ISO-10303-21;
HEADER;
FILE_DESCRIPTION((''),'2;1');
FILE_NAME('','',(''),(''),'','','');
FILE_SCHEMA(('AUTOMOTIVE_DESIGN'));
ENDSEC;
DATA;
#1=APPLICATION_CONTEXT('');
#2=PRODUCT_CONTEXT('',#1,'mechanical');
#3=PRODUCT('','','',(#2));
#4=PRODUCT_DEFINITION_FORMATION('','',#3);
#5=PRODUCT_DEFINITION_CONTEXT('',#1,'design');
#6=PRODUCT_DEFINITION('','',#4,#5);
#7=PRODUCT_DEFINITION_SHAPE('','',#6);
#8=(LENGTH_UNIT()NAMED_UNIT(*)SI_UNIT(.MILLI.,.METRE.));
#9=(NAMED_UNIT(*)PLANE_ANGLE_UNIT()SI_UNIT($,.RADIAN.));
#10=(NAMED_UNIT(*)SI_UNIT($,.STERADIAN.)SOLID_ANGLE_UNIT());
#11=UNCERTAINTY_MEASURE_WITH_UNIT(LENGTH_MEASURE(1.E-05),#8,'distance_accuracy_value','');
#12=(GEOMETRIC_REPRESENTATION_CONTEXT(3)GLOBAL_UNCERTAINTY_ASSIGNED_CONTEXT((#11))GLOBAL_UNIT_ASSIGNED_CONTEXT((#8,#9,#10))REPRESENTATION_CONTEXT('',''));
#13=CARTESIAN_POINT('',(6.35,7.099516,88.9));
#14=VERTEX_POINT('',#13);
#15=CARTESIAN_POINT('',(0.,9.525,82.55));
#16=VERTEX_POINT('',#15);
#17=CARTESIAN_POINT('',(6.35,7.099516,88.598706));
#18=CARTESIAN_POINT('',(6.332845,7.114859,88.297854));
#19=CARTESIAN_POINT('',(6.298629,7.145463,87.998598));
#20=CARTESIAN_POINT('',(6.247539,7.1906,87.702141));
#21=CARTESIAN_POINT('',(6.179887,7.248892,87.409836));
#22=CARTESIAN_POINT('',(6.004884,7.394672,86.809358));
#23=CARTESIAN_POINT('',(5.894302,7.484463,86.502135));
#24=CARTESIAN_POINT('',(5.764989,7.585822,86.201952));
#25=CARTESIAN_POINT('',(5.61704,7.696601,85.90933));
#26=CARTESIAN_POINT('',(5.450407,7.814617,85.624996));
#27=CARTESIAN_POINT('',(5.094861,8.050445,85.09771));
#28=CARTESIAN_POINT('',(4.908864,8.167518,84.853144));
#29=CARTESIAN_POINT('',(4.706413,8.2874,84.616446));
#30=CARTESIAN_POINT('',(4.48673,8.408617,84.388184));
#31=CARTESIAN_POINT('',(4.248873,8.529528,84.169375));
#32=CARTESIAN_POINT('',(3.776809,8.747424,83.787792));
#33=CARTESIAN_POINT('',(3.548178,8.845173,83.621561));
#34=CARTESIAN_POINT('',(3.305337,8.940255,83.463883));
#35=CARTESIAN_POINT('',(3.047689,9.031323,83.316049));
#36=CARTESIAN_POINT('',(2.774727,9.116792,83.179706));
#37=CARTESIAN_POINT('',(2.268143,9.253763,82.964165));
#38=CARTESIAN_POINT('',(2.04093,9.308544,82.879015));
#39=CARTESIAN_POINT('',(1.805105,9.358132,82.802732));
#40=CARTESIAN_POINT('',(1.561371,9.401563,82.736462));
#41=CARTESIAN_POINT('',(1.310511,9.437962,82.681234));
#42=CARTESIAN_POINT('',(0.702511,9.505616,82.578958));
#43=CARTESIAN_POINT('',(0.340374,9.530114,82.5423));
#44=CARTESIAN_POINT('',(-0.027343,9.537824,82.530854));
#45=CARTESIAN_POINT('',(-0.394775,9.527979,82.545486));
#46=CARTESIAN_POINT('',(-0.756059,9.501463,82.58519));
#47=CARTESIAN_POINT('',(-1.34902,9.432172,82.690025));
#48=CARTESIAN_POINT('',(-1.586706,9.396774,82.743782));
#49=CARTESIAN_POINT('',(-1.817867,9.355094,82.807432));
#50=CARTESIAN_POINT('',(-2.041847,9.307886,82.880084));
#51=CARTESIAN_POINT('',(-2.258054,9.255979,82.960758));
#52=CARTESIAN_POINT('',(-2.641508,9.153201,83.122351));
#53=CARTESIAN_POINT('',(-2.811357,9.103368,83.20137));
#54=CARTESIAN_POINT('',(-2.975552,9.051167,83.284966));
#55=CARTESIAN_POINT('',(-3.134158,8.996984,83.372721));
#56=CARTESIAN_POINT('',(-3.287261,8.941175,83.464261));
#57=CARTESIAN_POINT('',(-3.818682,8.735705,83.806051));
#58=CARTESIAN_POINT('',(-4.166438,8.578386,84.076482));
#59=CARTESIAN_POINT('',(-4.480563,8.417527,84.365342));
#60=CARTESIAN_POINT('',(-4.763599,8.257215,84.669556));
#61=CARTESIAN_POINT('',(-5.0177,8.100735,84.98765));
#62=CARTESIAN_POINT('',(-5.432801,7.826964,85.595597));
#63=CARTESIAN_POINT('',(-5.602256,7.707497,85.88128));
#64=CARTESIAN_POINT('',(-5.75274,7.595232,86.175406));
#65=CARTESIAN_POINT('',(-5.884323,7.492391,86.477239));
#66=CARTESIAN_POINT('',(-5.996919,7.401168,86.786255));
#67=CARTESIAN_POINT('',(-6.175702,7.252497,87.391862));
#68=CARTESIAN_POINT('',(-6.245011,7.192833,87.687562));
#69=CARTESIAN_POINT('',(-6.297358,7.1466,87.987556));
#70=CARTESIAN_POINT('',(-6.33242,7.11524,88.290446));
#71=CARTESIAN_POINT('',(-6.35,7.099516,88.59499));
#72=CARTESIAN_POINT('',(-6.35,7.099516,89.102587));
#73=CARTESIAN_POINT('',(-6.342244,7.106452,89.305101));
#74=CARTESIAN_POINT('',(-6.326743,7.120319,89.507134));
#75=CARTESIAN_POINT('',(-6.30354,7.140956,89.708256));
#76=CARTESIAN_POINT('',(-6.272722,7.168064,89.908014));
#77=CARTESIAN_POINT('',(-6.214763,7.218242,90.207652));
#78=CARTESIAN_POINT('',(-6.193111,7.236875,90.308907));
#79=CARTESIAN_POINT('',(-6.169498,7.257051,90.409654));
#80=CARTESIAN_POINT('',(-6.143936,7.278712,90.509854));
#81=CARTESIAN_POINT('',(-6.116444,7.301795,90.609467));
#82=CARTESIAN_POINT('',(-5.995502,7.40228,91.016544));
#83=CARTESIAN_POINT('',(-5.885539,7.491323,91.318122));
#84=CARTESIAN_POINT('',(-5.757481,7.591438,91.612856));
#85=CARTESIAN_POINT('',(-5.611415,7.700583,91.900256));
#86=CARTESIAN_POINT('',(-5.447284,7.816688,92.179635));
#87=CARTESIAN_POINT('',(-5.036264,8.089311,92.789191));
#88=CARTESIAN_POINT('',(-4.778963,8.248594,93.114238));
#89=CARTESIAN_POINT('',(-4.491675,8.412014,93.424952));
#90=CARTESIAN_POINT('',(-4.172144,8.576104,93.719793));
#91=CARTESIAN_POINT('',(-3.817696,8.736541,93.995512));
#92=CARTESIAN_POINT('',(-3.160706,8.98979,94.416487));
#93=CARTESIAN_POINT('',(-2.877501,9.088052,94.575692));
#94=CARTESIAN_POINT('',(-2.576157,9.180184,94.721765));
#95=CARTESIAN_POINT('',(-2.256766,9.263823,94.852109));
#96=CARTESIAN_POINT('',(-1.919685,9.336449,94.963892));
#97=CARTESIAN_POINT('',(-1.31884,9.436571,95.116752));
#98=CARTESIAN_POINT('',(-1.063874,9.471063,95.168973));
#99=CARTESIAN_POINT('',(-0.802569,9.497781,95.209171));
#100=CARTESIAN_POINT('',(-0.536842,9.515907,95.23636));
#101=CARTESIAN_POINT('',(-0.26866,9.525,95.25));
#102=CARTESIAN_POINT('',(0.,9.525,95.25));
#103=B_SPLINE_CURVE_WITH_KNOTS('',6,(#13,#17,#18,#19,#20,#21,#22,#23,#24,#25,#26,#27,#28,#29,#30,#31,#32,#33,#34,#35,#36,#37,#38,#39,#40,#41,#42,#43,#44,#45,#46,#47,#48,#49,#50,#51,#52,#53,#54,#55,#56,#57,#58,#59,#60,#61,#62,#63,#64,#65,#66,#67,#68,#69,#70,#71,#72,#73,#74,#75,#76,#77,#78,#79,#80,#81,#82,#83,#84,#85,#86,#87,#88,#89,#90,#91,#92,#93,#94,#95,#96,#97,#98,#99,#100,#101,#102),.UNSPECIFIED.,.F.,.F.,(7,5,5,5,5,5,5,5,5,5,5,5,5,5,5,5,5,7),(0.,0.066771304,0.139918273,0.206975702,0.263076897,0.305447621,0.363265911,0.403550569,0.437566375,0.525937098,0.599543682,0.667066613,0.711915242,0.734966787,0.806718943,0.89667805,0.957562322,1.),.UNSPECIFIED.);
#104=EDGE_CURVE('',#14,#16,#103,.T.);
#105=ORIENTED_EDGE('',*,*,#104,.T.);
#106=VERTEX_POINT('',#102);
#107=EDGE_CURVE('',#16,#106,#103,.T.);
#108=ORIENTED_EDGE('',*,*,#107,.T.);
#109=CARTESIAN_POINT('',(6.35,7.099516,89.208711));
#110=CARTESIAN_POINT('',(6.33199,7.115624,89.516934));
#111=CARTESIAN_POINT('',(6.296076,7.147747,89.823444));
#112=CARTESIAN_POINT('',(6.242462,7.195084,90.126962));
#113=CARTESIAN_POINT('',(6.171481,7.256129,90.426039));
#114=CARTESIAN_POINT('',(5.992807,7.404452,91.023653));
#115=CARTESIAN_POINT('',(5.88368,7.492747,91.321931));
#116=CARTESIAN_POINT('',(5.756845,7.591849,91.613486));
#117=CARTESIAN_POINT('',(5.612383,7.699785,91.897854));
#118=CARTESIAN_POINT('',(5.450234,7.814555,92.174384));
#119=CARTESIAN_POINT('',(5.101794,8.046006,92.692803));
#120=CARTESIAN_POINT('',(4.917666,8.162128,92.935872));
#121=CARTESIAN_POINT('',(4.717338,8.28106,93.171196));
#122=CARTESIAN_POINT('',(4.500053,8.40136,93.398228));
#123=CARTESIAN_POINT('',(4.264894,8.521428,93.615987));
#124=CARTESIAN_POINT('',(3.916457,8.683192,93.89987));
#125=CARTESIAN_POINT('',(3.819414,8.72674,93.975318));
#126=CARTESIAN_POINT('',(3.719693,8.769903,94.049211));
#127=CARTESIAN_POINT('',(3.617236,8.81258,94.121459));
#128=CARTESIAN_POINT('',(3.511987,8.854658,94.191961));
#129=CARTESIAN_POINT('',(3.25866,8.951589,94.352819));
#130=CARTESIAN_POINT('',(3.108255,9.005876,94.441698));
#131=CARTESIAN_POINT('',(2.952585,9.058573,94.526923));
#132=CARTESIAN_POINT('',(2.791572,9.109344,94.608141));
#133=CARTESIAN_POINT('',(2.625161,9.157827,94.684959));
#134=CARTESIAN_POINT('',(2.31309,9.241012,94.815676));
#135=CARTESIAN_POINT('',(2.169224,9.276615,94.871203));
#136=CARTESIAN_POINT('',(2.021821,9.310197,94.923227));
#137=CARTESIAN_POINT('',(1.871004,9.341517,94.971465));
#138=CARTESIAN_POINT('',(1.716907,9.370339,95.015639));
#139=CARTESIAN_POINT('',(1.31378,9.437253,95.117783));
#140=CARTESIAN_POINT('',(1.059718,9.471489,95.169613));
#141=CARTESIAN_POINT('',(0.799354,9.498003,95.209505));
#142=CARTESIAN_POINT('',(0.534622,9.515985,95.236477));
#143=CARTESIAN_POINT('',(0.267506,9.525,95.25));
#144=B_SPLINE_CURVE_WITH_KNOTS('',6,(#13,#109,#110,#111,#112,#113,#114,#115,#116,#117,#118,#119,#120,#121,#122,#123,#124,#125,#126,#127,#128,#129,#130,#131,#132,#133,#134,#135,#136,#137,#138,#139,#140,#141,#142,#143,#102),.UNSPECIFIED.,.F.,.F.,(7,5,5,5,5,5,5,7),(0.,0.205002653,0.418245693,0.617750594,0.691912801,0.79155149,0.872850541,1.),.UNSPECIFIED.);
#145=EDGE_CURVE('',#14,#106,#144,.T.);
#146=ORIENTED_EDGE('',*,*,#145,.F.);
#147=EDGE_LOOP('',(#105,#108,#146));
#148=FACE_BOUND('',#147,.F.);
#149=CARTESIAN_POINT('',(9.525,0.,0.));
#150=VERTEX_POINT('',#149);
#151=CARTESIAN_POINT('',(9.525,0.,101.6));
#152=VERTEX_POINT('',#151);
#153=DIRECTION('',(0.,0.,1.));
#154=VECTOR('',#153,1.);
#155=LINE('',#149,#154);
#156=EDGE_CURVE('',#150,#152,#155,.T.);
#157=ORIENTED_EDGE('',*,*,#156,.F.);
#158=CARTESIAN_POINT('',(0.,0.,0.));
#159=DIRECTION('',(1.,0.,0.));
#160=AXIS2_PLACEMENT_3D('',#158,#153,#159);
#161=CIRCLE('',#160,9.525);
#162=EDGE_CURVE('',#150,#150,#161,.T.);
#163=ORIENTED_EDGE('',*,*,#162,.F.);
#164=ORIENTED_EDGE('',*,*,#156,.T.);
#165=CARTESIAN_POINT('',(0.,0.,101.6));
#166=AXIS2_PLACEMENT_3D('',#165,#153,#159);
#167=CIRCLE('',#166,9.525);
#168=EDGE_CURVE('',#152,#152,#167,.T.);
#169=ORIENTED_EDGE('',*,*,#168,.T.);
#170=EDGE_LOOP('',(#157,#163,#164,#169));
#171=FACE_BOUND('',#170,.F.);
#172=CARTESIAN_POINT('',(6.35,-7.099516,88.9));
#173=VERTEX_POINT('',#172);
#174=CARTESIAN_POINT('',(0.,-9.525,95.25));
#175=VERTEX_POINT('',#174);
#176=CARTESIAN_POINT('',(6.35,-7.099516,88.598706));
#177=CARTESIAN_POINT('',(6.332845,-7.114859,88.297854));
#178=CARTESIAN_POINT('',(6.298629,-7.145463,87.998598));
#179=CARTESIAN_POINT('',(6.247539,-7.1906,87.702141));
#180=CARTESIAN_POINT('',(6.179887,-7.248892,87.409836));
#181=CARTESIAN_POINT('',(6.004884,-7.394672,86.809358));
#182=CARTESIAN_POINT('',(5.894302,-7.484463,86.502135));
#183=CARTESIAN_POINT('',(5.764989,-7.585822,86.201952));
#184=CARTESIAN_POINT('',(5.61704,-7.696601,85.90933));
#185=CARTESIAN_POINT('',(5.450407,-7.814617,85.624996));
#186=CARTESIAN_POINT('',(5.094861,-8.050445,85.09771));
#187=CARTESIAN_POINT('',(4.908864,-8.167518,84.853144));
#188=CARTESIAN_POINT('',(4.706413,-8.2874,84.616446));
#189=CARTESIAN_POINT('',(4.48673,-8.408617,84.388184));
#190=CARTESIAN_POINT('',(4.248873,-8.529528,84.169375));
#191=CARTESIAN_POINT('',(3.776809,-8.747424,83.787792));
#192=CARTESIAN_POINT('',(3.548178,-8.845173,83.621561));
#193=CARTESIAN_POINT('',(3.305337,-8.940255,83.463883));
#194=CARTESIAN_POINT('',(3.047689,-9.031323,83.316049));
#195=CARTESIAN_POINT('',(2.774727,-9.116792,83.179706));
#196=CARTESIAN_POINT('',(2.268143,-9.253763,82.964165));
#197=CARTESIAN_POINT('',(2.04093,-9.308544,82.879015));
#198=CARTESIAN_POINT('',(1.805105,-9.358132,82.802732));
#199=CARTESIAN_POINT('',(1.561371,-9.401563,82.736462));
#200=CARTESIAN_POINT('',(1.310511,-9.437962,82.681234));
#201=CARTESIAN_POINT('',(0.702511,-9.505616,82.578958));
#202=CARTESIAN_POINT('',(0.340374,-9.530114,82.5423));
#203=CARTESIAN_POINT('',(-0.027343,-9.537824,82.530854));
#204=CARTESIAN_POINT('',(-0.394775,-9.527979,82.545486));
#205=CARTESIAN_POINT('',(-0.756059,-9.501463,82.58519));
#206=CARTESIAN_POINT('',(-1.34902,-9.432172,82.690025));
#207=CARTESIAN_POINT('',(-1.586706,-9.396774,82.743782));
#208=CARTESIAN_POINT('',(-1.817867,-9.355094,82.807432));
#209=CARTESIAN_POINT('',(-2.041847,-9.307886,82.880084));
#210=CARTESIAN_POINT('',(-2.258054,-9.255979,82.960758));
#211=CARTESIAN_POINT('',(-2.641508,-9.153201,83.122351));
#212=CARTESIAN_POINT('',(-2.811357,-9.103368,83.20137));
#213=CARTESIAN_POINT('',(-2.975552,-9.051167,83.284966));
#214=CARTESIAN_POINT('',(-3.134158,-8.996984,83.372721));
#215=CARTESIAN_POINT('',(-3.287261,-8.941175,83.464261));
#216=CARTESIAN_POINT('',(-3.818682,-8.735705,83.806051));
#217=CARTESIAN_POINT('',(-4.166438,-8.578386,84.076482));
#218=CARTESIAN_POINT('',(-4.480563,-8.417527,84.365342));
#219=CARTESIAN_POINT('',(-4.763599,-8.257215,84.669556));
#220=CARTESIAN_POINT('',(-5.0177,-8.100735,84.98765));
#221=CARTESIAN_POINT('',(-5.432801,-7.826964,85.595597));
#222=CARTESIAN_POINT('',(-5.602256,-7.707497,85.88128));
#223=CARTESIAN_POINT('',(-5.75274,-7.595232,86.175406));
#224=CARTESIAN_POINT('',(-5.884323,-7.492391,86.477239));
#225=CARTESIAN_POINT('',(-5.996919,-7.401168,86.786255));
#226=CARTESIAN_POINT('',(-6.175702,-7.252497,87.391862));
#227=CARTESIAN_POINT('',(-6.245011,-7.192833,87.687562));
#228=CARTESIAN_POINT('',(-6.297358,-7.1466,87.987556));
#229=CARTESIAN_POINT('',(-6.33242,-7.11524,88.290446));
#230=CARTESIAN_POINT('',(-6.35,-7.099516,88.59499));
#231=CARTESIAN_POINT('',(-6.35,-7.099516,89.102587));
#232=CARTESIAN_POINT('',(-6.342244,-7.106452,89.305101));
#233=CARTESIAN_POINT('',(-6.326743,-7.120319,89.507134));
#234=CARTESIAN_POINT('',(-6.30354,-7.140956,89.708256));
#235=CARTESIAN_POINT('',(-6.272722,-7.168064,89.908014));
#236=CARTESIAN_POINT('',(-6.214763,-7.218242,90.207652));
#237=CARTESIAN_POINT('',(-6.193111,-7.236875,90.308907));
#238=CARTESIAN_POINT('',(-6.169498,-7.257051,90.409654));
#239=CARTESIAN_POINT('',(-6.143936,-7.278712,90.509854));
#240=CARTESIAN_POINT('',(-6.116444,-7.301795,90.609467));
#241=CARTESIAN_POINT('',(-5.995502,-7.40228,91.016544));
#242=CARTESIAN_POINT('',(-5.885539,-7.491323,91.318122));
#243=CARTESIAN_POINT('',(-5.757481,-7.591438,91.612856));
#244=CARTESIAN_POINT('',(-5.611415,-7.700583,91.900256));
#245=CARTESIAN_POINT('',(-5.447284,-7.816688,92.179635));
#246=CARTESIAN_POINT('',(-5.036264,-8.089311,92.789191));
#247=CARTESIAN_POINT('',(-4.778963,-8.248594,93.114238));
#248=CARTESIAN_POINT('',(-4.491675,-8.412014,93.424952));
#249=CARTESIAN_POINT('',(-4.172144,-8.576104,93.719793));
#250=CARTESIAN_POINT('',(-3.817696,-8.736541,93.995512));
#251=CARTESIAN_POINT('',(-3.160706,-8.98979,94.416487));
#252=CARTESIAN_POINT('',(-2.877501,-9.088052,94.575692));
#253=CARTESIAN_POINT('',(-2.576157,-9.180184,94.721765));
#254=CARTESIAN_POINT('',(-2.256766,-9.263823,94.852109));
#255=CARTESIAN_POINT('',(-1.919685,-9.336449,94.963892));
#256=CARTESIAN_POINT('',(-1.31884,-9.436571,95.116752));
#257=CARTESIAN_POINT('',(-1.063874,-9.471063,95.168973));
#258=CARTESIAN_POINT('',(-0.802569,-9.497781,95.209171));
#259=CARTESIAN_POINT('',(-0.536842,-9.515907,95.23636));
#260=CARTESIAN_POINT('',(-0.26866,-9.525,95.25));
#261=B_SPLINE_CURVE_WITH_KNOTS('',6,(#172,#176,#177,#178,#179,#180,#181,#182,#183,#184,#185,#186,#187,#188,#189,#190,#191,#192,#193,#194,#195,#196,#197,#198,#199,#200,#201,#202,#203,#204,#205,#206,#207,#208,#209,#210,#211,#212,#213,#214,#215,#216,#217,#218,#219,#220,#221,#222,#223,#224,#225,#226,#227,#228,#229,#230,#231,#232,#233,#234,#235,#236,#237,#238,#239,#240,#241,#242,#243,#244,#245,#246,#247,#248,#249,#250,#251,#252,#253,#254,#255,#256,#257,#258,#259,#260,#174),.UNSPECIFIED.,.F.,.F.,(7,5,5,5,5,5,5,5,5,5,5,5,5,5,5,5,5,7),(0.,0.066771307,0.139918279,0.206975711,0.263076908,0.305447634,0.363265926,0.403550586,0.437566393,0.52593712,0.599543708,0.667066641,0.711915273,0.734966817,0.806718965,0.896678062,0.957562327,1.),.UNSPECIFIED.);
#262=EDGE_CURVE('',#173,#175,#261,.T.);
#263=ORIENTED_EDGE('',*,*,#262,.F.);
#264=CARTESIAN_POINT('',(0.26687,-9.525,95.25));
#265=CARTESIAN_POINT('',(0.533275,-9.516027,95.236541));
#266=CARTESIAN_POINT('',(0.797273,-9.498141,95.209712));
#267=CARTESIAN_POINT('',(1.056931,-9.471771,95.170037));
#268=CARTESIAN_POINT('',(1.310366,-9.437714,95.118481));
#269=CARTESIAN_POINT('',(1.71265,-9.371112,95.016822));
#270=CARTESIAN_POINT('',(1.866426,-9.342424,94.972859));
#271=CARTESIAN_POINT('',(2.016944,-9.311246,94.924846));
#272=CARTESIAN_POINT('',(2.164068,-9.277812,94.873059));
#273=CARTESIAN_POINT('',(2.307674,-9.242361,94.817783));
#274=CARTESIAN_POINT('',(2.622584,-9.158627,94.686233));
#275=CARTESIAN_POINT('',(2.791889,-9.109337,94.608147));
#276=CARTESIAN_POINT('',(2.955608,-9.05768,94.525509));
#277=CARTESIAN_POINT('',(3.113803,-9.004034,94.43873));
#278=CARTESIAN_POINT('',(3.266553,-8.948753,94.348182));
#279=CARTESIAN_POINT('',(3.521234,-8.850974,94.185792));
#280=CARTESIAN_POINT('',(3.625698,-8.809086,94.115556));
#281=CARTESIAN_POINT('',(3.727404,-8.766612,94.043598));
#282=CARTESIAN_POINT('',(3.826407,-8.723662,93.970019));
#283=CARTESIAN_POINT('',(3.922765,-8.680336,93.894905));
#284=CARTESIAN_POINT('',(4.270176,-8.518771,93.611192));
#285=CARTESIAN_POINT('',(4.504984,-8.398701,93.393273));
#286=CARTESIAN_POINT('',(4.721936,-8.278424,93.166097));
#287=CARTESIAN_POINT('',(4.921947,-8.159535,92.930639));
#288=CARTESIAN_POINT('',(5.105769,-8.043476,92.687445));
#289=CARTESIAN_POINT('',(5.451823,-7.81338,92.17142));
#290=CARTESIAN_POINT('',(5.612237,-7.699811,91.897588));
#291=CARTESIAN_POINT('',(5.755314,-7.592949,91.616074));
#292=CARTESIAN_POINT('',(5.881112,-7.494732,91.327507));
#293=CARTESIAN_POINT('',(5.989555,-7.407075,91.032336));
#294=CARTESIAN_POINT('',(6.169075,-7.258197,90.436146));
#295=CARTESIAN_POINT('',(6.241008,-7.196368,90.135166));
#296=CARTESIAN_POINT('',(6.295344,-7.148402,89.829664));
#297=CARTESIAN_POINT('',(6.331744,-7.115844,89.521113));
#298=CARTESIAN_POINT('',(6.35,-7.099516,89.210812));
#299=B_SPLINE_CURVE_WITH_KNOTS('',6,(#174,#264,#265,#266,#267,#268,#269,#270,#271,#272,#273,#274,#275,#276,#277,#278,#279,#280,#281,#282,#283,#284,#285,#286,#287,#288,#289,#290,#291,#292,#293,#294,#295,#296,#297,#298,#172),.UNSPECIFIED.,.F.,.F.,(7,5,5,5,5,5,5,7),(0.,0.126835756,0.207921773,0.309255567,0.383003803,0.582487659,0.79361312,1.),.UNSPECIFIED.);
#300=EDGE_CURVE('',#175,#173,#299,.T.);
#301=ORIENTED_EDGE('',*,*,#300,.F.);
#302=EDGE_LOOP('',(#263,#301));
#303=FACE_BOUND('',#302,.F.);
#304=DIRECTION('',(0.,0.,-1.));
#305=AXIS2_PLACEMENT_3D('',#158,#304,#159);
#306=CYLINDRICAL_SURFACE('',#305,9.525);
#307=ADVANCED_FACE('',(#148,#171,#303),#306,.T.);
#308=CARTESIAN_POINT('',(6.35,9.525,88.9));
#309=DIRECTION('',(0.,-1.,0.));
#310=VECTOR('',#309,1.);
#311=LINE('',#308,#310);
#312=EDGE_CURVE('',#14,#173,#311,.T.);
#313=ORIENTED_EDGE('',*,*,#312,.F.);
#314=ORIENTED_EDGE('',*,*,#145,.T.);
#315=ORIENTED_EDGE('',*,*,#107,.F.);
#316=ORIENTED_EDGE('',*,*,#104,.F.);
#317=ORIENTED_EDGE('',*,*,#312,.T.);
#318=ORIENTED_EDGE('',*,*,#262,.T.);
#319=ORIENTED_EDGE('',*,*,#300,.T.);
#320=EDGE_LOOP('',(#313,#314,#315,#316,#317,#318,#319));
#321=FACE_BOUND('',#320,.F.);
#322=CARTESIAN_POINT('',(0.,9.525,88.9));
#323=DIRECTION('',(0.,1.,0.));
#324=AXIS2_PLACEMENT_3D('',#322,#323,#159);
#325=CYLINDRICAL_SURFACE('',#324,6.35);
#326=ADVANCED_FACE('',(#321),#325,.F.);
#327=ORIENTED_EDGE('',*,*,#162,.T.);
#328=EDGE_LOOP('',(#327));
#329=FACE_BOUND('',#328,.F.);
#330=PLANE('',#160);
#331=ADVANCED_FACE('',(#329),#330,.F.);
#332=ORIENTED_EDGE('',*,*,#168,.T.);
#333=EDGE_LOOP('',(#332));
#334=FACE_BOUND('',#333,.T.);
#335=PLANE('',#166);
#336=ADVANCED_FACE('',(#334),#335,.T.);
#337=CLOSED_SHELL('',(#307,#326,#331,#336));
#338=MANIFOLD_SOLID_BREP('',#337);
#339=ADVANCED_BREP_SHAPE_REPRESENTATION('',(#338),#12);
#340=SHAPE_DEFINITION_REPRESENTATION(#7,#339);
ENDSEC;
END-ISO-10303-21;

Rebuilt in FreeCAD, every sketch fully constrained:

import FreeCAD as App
import Part
import Sketcher

V = App.Vector
Q = App.Units.Quantity

doc = App.newDocument("Part")
params = doc.addObject("Spreadsheet::Sheet", "Params")
for row, (alias, value) in enumerate([
    ("sketch1_diameter", "0.75 in"),
    ("pad1_length", "4 in"),
    ("sketch2_diameter", "0.5 in"),
    ("pocket1_length", "1 in"),
], start=1):
    params.set(f"A{row}", alias)
    params.set(f"B{row}", "=" + value)
    params.setAlias(f"B{row}", alias)

body = doc.addObject("PartDesign::Body", "Body")

sketch1 = doc.addObject("Sketcher::SketchObject", "Sketch")
body.addObject(sketch1)
sketch1.AttachmentSupport = (doc.XY_Plane, [""])
sketch1.MapMode = "FlatFace"
sketch1.addGeometry(Part.Circle(V(0, 0, 0), V(0, 0, 1), 10), False)
sketch1.addConstraint([
    Sketcher.Constraint("Coincident", 0, 3, -1, 1),
    Sketcher.Constraint("Diameter", 0, Q("0.75 in")),
])
sketch1.setExpression("Constraints[1]", "Params.sketch1_diameter")
pad1 = doc.addObject("PartDesign::Pad", "Pad")
body.addObject(pad1)
pad1.Profile = sketch1
pad1.setExpression("Length", "Params.pad1_length")

sketch2 = doc.addObject("Sketcher::SketchObject", "Sketch001")
body.addObject(sketch2)
sketch2.AttachmentSupport = (doc.XZ_Plane, [""])
sketch2.MapMode = "FlatFace"
sketch2.AttachmentOffset = App.Placement(V(0, 0, -0.375 * 25.4), App.Rotation())
sketch2.addGeometry(Part.Circle(V(0, 89, 0), V(0, 0, 1), 6), False)
sketch2.addConstraint([
    Sketcher.Constraint("PointOnObject", 0, 3, -2),
    Sketcher.Constraint("Diameter", 0, Q("0.5 in")),
    Sketcher.Constraint("DistanceY", -1, 1, 0, 3, Q("3.5 in")),
])
sketch2.setExpression("Constraints[1]", "Params.sketch2_diameter")
pocket1 = doc.addObject("PartDesign::Pocket", "Pocket")
body.addObject(pocket1)
pocket1.Profile = sketch2
pocket1.setExpression("Length", "Params.pocket1_length")
pocket1.Reversed = True

doc.recompute()
